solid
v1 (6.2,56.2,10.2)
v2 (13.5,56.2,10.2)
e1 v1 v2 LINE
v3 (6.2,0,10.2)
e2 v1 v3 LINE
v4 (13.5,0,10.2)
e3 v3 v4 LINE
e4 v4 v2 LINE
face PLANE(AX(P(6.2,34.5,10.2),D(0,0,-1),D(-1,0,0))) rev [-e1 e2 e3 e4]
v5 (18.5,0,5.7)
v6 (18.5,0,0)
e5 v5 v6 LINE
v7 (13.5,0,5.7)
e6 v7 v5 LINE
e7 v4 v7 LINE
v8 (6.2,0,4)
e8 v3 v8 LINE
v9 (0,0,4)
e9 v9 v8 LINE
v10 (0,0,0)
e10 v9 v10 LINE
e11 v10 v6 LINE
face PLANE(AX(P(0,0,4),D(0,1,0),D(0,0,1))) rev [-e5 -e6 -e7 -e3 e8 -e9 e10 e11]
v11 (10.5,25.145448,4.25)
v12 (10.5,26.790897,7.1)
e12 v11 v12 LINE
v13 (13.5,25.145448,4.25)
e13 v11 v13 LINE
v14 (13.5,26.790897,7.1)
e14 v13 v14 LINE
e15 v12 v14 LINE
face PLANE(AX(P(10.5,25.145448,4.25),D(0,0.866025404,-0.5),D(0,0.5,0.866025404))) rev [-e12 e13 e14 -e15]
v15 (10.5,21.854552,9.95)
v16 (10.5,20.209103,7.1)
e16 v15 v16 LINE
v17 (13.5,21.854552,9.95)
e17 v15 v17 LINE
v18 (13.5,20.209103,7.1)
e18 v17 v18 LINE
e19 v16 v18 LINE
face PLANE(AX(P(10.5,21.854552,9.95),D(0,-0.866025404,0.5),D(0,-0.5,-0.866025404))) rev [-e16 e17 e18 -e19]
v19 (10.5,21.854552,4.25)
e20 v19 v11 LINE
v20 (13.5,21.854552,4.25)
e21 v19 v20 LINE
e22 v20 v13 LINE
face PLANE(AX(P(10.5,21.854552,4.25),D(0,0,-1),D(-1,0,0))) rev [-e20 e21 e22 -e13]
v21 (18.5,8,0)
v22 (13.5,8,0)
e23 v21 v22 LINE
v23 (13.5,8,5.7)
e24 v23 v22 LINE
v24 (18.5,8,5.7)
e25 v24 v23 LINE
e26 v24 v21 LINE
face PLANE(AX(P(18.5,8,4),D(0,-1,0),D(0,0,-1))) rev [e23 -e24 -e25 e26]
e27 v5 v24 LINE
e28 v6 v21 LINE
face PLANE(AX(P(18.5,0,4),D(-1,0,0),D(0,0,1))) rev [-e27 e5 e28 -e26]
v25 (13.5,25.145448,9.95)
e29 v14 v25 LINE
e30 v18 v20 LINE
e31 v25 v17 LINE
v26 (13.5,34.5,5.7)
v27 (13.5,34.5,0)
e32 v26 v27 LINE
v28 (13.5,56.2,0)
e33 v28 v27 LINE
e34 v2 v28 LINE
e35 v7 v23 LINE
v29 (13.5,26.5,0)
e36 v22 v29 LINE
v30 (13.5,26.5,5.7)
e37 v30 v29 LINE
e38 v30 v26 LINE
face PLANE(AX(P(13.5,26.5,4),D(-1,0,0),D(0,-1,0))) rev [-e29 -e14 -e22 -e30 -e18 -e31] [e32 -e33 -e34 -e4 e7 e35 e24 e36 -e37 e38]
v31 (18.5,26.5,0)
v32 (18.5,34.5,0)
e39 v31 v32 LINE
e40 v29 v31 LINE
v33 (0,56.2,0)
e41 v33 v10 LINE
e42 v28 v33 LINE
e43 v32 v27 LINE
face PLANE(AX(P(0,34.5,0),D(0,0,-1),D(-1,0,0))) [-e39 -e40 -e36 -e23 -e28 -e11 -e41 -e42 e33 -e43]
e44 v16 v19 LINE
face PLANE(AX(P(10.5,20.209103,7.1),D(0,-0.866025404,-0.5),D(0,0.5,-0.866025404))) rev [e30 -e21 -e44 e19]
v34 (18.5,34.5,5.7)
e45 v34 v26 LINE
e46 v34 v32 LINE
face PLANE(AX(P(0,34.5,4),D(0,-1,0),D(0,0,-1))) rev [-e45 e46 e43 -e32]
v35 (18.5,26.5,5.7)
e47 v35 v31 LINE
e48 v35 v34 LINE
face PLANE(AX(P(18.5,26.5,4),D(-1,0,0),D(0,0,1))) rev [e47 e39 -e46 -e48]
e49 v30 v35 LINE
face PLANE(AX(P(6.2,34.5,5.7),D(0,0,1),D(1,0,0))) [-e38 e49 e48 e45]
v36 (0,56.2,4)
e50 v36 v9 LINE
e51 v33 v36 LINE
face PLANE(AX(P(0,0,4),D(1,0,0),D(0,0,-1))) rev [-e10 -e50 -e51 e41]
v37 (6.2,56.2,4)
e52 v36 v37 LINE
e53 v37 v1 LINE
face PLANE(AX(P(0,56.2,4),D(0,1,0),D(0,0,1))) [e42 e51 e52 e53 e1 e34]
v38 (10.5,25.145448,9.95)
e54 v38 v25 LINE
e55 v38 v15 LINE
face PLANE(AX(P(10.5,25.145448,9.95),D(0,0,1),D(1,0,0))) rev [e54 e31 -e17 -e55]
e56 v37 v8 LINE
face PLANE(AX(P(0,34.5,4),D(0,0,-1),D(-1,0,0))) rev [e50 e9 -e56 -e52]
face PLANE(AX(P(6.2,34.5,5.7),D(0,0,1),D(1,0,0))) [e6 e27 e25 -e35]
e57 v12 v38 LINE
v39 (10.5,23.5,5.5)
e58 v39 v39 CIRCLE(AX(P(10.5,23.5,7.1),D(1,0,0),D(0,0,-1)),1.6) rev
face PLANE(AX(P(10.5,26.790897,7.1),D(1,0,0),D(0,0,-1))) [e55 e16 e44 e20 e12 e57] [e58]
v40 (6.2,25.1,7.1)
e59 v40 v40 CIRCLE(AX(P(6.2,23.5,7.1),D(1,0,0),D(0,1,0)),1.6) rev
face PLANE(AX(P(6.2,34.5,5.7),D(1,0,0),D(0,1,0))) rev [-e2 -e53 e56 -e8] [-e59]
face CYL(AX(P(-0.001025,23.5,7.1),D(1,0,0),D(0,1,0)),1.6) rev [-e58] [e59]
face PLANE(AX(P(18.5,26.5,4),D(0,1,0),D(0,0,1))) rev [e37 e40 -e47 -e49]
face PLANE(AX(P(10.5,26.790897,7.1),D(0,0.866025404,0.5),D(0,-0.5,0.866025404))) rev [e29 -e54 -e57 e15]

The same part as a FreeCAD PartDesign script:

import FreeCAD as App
import Part
import Sketcher

V = App.Vector
Q = App.Units.Quantity

doc = App.newDocument("Part")
body = doc.addObject("PartDesign::Body", "Body")

# Sketch on XY plane
sketch1 = body.newObject("Sketcher::SketchObject", "Sketch")
sketch1.AttachmentSupport = (doc.getObject("XY_Plane"), [""])
sketch1.MapMode = "FlatFace"
sketch1.addGeometry([
    Part.LineSegment(V(18, 26, 0), V(18, 34, 0)),  # 0
    Part.LineSegment(V(18, 34, 0), V(0, 34, 0)),  # 1
    Part.LineSegment(V(0, 34, 0), V(0, 0, 0)),  # 2
    Part.LineSegment(V(0, 0, 0), V(18, 0, 0)),  # 3
    Part.LineSegment(V(18, 0, 0), V(18, 8, 0)),  # 4
    Part.LineSegment(V(18, 8, 0), V(14, 8, 0)),  # 5
    Part.LineSegment(V(14, 8, 0), V(14, 26, 0)),  # 6
    Part.LineSegment(V(14, 26, 0), V(18, 26, 0)),  # 7
], False)
sketch1.addConstraint([
    Sketcher.Constraint("Coincident", 0, 2, 1, 1),
    Sketcher.Constraint("Coincident", 1, 2, 2, 1),
    Sketcher.Constraint("Coincident", 2, 2, 3, 1),
    Sketcher.Constraint("Coincident", 3, 2, 4, 1),
    Sketcher.Constraint("Coincident", 4, 2, 5, 1),
    Sketcher.Constraint("Coincident", 5, 2, 6, 1),
    Sketcher.Constraint("Coincident", 6, 2, 7, 1),
    Sketcher.Constraint("Coincident", 7, 2, 0, 1),
    Sketcher.Constraint("Vertical", 0),
    Sketcher.Constraint("Horizontal", 1),
    Sketcher.Constraint("Vertical", 2),
    Sketcher.Constraint("Horizontal", 3),
    Sketcher.Constraint("Vertical", 4),
    Sketcher.Constraint("Horizontal", 5),
    Sketcher.Constraint("Vertical", 6),
    Sketcher.Constraint("Horizontal", 7),
    Sketcher.Constraint("Coincident", 2, 2, -1, 1),
    Sketcher.Constraint("Vertical", 0, 2, 3, 2),
    Sketcher.Constraint("Equal", 0, 4),
    Sketcher.Constraint("Equal", 3, 6),
    Sketcher.Constraint("DistanceX", 5, 2, 5, 1, 5.0),
    Sketcher.Constraint("DistanceY", 0, 1, 0, 2, 8.0),
    Sketcher.Constraint("DistanceX", 1, 2, 1, 1, 18.5),
])
pad1 = body.newObject("PartDesign::Pad", "Pad")
pad1.Profile = sketch1
pad1.Length = 4

# Sketch on XY plane
sketch2 = body.newObject("Sketcher::SketchObject", "Sketch001")
sketch2.AttachmentSupport = (doc.getObject("XY_Plane"), [""])
sketch2.MapMode = "FlatFace"
sketch2.AttachmentOffset = App.Placement(V(0, 0, 4), App.Rotation())
sketch2.addGeometry([
    Part.LineSegment(V(6, 34, 0), V(6, 0, 0)),  # 0
    Part.LineSegment(V(6, 0, 0), V(18, 0, 0)),  # 1
    Part.LineSegment(V(18, 0, 0), V(18, 8, 0)),  # 2
    Part.LineSegment(V(18, 8, 0), V(14, 8, 0)),  # 3
    Part.LineSegment(V(14, 8, 0), V(14, 26, 0)),  # 4
    Part.LineSegment(V(14, 26, 0), V(18, 26, 0)),  # 5
    Part.LineSegment(V(18, 26, 0), V(18, 34, 0)),  # 6
    Part.LineSegment(V(18, 34, 0), V(6, 34, 0)),  # 7
], False)
sketch2.addConstraint([
    Sketcher.Constraint("Coincident", 0, 2, 1, 1),
    Sketcher.Constraint("Coincident", 1, 2, 2, 1),
    Sketcher.Constraint("Coincident", 2, 2, 3, 1),
    Sketcher.Constraint("Coincident", 3, 2, 4, 1),
    Sketcher.Constraint("Coincident", 4, 2, 5, 1),
    Sketcher.Constraint("Coincident", 5, 2, 6, 1),
    Sketcher.Constraint("Coincident", 6, 2, 7, 1),
    Sketcher.Constraint("Coincident", 7, 2, 0, 1),
    Sketcher.Constraint("Vertical", 0),
    Sketcher.Constraint("Horizontal", 1),
    Sketcher.Constraint("Vertical", 2),
    Sketcher.Constraint("Horizontal", 3),
    Sketcher.Constraint("Vertical", 4),
    Sketcher.Constraint("Horizontal", 5),
    Sketcher.Constraint("Vertical", 6),
    Sketcher.Constraint("Horizontal", 7),
    Sketcher.Constraint("PointOnObject", 0, 2, -1),
    Sketcher.Constraint("Vertical", 2, 2, 5, 2),
    Sketcher.Constraint("Equal", 2, 6),
    Sketcher.Constraint("DistanceX", 3, 2, 3, 1, 5.0),
    Sketcher.Constraint("DistanceY", 2, 1, 2, 2, 8.0),
    Sketcher.Constraint("DistanceX", 1, 1, 1, 2, 12.3),
    Sketcher.Constraint("DistanceY", 0, 2, 0, 1, 34.5),
    Sketcher.Constraint("DistanceX", -1, 1, 0, 2, 6.2),
])
pad2 = body.newObject("PartDesign::Pad", "Pad001")
pad2.Profile = sketch2
pad2.Length = 1.7

# Sketch on XY plane
sketch3 = body.newObject("Sketcher::SketchObject", "Sketch002")
sketch3.AttachmentSupport = (doc.getObject("XY_Plane"), [""])
sketch3.MapMode = "FlatFace"
sketch3.AttachmentOffset = App.Placement(V(0, 0, 5.7), App.Rotation())
sketch3.addGeometry([
    Part.LineSegment(V(6, 34, 0), V(6, 0, 0)),
    Part.LineSegment(V(6, 0, 0), V(14, 0, 0)),
    Part.LineSegment(V(14, 0, 0), V(14, 34, 0)),
    Part.LineSegment(V(14, 34, 0), V(6, 34, 0)),
], False)
sketch3.addConstraint([
    Sketcher.Constraint("Coincident", 0, 2, 1, 1),
    Sketcher.Constraint("Coincident", 1, 2, 2, 1),
    Sketcher.Constraint("Coincident", 2, 2, 3, 1),
    Sketcher.Constraint("Coincident", 3, 2, 0, 1),
    Sketcher.Constraint("Vertical", 0),
    Sketcher.Constraint("Horizontal", 1),
    Sketcher.Constraint("Vertical", 2),
    Sketcher.Constraint("Horizontal", 3),
    Sketcher.Constraint("PointOnObject", 0, 2, -1),
    Sketcher.Constraint("DistanceX", 1, 1, 1, 2, 7.3),
    Sketcher.Constraint("DistanceY", 0, 2, 0, 1, 34.5),
    Sketcher.Constraint("DistanceX", -1, 1, 0, 2, 6.2),
])
pad3 = body.newObject("PartDesign::Pad", "Pad002")
pad3.Profile = sketch3
pad3.Length = 4.5

# Sketch on YZ plane
sketch4 = body.newObject("Sketcher::SketchObject", "Sketch003")
sketch4.AttachmentSupport = (doc.getObject("YZ_Plane"), [""])
sketch4.MapMode = "FlatFace"
sketch4.AttachmentOffset = App.Placement(V(0, 0, 13.5), App.Rotation())
sketch4.addGeometry(Part.Circle(V(23.5, 7.1, 0), V(0, 0, 1), 1.6), False)
sketch4.addConstraint([
    Sketcher.Constraint("Diameter", 0, 3.2),
    Sketcher.Constraint("DistanceX", -1, 1, 0, 3, 23.5),
    Sketcher.Constraint("DistanceY", -1, 1, 0, 3, 7.1),
])
pocket1 = body.newObject("PartDesign::Pocket", "Pocket")
pocket1.Profile = sketch4
pocket1.Type = "UpToFirst"

# Sketch on YZ plane
sketch5 = body.newObject("Sketcher::SketchObject", "Sketch004")
sketch5.AttachmentSupport = (doc.getObject("YZ_Plane"), [""])
sketch5.MapMode = "FlatFace"
sketch5.AttachmentOffset = App.Placement(V(0, 0, 13.5), App.Rotation())
sketch5.addGeometry([
    Part.LineSegment(V(26.8, 7.1, 0), V(25.1, 9.9, 0)),  # 0
    Part.LineSegment(V(25.1, 9.9, 0), V(21.9, 9.9, 0)),  # 1
    Part.LineSegment(V(21.9, 9.9, 0), V(20.2, 7.1, 0)),  # 2
    Part.LineSegment(V(20.2, 7.1, 0), V(21.9, 4.2, 0)),  # 3
    Part.LineSegment(V(21.9, 4.2, 0), V(25.1, 4.2, 0)),  # 4
    Part.LineSegment(V(25.1, 4.2, 0), V(26.8, 7.1, 0)),  # 5
], False)
sketch5.addConstraint([
    Sketcher.Constraint("Coincident", 0, 2, 1, 1),
    Sketcher.Constraint("Coincident", 1, 2, 2, 1),
    Sketcher.Constraint("Coincident", 2, 2, 3, 1),
    Sketcher.Constraint("Coincident", 3, 2, 4, 1),
    Sketcher.Constraint("Coincident", 4, 2, 5, 1),
    Sketcher.Constraint("Coincident", 5, 2, 0, 1),
    Sketcher.Constraint("Horizontal", 1),
    Sketcher.Constraint("Horizontal", 4),
    Sketcher.Constraint("Parallel", 0, 3),
    Sketcher.Constraint("Parallel", 2, 5),
    Sketcher.Constraint("Horizontal", 2, 2, 5, 2),
    Sketcher.Constraint("Vertical", 1, 2, 3, 2),
    Sketcher.Constraint("Vertical", 0, 2, 4, 2),
    Sketcher.Constraint("Angle", 0, Q("120 deg")),
    Sketcher.Constraint("DistanceY", -1, 1, 2, 2, 7.1),
    Sketcher.Constraint("DistanceY", 3, 2, 1, 2, 5.7),
    Sketcher.Constraint("DistanceX", 1, 2, 1, 1, 3.290897),
    Sketcher.Constraint("DistanceX", -1, 1, 0, 2, 25.145448),
])
pocket2 = body.newObject("PartDesign::Pocket", "Pocket001")
pocket2.Profile = sketch5
pocket2.Length = 3

# Sketch on XZ plane
sketch6 = body.newObject("Sketcher::SketchObject", "Sketch005")
sketch6.AttachmentSupport = (doc.getObject("XZ_Plane"), [""])
sketch6.MapMode = "FlatFace"
sketch6.AttachmentOffset = App.Placement(V(0, 0, -34.5), App.Rotation())
sketch6.addGeometry([
    Part.LineSegment(V(13.5, 0, 0), V(0, 0, 0)),  # 0
    Part.LineSegment(V(0, 0, 0), V(0, 4, 0)),  # 1
    Part.LineSegment(V(0, 4, 0), V(6.2, 4, 0)),  # 2
    Part.LineSegment(V(6.2, 4, 0), V(6.2, 10.2, 0)),  # 3
    Part.LineSegment(V(6.2, 10.2, 0), V(13.5, 10.2, 0)),  # 4
    Part.LineSegment(V(13.5, 10.2, 0), V(13.5, 0, 0)),  # 5
], False)
sketch6.addConstraint([
    Sketcher.Constraint("Coincident", 0, 2, 1, 1),
    Sketcher.Constraint("Coincident", 1, 2, 2, 1),
    Sketcher.Constraint("Coincident", 2, 2, 3, 1),
    Sketcher.Constraint("Coincident", 3, 2, 4, 1),
    Sketcher.Constraint("Coincident", 4, 2, 5, 1),
    Sketcher.Constraint("Coincident", 5, 2, 0, 1),
    Sketcher.Constraint("Horizontal", 0),
    Sketcher.Constraint("Vertical", 1),
    Sketcher.Constraint("Horizontal", 2),
    Sketcher.Constraint("Vertical", 3),
    Sketcher.Constraint("Horizontal", 4),
    Sketcher.Constraint("Vertical", 5),
    Sketcher.Constraint("Coincident", 0, 2, -1, 1),
    Sketcher.Constraint("Equal", 2, 3),
    Sketcher.Constraint("DistanceY", 1, 1, 1, 2, 4.0),
    Sketcher.Constraint("DistanceX", 0, 2, 0, 1, 13.5),
    Sketcher.Constraint("DistanceX", 2, 1, 2, 2, 6.2),
])
pad4 = body.newObject("PartDesign::Pad", "Pad003")
pad4.Profile = sketch6
pad4.Length = 21.7
pad4.Reversed = True

doc.recompute()
